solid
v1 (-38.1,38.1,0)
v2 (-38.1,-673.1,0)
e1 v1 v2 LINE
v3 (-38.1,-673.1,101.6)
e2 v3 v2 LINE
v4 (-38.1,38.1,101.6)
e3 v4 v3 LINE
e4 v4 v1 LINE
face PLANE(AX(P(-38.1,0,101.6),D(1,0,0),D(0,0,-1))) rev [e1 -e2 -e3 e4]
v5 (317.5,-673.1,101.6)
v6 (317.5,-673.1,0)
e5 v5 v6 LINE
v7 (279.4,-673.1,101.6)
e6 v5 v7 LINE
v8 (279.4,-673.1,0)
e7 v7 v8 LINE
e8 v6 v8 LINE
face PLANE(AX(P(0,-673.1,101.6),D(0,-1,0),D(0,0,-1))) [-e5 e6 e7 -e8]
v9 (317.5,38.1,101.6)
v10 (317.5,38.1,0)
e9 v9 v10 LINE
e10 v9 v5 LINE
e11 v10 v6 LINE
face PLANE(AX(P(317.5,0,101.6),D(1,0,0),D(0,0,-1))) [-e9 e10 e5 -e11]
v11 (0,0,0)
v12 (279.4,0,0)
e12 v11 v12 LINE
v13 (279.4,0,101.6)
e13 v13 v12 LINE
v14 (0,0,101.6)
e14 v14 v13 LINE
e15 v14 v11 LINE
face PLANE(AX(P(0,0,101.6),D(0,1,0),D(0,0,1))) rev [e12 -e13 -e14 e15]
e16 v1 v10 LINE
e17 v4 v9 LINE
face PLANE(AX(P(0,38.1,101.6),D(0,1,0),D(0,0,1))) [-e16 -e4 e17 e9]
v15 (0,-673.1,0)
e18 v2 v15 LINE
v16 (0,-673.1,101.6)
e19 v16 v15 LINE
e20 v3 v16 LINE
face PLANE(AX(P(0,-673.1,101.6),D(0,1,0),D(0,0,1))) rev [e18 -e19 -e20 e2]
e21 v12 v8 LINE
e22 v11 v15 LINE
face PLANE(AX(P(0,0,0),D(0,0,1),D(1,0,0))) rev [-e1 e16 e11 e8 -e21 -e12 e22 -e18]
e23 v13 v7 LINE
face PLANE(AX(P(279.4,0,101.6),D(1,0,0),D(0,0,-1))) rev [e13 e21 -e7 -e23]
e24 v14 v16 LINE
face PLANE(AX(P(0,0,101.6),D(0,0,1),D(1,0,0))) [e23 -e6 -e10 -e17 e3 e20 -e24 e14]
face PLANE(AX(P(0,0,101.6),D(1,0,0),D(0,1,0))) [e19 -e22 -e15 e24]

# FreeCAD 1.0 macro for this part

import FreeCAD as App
import Part
import Sketcher
Q = App.Units.Quantity

doc = App.newDocument("Part")
body = doc.addObject("PartDesign::Body", "Body")

# Sketch on XY plane
sketch1 = body.newObject("Sketcher::SketchObject", "Sketch")
sketch1.AttachmentSupport = (doc.getObject("XY_Plane"), [""])
sketch1.MapMode = "FlatFace"
sketch1.addGeometry([
    Part.LineSegment(App.Vector(279, -673, 0), App.Vector(318, -673, 0)),  # 0
    Part.LineSegment(App.Vector(318, -673, 0), App.Vector(318, 38, 0)),  # 1
    Part.LineSegment(App.Vector(318, 38, 0), App.Vector(-38, 38, 0)),  # 2
    Part.LineSegment(App.Vector(-38, 38, 0), App.Vector(-38, -673, 0)),  # 3
    Part.LineSegment(App.Vector(-38, -673, 0), App.Vector(0, -673, 0)),  # 4
    Part.LineSegment(App.Vector(0, -673, 0), App.Vector(0, 0, 0)),  # 5
    Part.LineSegment(App.Vector(0, 0, 0), App.Vector(279, 0, 0)),  # 6
    Part.LineSegment(App.Vector(279, 0, 0), App.Vector(279, -673, 0)),  # 7
], False)
sketch1.addConstraint([
    Sketcher.Constraint("Coincident", 0, 2, 1, 1),
    Sketcher.Constraint("Coincident", 1, 2, 2, 1),
    Sketcher.Constraint("Coincident", 2, 2, 3, 1),
    Sketcher.Constraint("Coincident", 3, 2, 4, 1),
    Sketcher.Constraint("Coincident", 4, 2, 5, 1),
    Sketcher.Constraint("Coincident", 5, 2, 6, 1),
    Sketcher.Constraint("Coincident", 6, 2, 7, 1),
    Sketcher.Constraint("Coincident", 7, 2, 0, 1),
    Sketcher.Constraint("Horizontal", 0),
    Sketcher.Constraint("Vertical", 1),
    Sketcher.Constraint("Horizontal", 2),
    Sketcher.Constraint("Vertical", 3),
    Sketcher.Constraint("Horizontal", 4),
    Sketcher.Constraint("Vertical", 5),
    Sketcher.Constraint("Horizontal", 6),
    Sketcher.Constraint("Vertical", 7),
    Sketcher.Constraint("Coincident", 5, 2, -1, 1),
    Sketcher.Constraint("Horizontal", 0, 2, 3, 2),
    Sketcher.Constraint("Equal", 0, 4),
    Sketcher.Constraint("DistanceX", 2, 2, 2, 1, Q("14 in")),
    Sketcher.Constraint("DistanceX", 6, 1, 6, 2, Q("11 in")),
    Sketcher.Constraint("DistanceY", 1, 1, 1, 2, Q("28 in")),
    Sketcher.Constraint("DistanceY", 5, 1, 5, 2, Q("26.5 in")),
])
pad1 = body.newObject("PartDesign::Pad", "Pad")
pad1.Profile = sketch1
pad1.Length = Q("4 in")

doc.recompute()
